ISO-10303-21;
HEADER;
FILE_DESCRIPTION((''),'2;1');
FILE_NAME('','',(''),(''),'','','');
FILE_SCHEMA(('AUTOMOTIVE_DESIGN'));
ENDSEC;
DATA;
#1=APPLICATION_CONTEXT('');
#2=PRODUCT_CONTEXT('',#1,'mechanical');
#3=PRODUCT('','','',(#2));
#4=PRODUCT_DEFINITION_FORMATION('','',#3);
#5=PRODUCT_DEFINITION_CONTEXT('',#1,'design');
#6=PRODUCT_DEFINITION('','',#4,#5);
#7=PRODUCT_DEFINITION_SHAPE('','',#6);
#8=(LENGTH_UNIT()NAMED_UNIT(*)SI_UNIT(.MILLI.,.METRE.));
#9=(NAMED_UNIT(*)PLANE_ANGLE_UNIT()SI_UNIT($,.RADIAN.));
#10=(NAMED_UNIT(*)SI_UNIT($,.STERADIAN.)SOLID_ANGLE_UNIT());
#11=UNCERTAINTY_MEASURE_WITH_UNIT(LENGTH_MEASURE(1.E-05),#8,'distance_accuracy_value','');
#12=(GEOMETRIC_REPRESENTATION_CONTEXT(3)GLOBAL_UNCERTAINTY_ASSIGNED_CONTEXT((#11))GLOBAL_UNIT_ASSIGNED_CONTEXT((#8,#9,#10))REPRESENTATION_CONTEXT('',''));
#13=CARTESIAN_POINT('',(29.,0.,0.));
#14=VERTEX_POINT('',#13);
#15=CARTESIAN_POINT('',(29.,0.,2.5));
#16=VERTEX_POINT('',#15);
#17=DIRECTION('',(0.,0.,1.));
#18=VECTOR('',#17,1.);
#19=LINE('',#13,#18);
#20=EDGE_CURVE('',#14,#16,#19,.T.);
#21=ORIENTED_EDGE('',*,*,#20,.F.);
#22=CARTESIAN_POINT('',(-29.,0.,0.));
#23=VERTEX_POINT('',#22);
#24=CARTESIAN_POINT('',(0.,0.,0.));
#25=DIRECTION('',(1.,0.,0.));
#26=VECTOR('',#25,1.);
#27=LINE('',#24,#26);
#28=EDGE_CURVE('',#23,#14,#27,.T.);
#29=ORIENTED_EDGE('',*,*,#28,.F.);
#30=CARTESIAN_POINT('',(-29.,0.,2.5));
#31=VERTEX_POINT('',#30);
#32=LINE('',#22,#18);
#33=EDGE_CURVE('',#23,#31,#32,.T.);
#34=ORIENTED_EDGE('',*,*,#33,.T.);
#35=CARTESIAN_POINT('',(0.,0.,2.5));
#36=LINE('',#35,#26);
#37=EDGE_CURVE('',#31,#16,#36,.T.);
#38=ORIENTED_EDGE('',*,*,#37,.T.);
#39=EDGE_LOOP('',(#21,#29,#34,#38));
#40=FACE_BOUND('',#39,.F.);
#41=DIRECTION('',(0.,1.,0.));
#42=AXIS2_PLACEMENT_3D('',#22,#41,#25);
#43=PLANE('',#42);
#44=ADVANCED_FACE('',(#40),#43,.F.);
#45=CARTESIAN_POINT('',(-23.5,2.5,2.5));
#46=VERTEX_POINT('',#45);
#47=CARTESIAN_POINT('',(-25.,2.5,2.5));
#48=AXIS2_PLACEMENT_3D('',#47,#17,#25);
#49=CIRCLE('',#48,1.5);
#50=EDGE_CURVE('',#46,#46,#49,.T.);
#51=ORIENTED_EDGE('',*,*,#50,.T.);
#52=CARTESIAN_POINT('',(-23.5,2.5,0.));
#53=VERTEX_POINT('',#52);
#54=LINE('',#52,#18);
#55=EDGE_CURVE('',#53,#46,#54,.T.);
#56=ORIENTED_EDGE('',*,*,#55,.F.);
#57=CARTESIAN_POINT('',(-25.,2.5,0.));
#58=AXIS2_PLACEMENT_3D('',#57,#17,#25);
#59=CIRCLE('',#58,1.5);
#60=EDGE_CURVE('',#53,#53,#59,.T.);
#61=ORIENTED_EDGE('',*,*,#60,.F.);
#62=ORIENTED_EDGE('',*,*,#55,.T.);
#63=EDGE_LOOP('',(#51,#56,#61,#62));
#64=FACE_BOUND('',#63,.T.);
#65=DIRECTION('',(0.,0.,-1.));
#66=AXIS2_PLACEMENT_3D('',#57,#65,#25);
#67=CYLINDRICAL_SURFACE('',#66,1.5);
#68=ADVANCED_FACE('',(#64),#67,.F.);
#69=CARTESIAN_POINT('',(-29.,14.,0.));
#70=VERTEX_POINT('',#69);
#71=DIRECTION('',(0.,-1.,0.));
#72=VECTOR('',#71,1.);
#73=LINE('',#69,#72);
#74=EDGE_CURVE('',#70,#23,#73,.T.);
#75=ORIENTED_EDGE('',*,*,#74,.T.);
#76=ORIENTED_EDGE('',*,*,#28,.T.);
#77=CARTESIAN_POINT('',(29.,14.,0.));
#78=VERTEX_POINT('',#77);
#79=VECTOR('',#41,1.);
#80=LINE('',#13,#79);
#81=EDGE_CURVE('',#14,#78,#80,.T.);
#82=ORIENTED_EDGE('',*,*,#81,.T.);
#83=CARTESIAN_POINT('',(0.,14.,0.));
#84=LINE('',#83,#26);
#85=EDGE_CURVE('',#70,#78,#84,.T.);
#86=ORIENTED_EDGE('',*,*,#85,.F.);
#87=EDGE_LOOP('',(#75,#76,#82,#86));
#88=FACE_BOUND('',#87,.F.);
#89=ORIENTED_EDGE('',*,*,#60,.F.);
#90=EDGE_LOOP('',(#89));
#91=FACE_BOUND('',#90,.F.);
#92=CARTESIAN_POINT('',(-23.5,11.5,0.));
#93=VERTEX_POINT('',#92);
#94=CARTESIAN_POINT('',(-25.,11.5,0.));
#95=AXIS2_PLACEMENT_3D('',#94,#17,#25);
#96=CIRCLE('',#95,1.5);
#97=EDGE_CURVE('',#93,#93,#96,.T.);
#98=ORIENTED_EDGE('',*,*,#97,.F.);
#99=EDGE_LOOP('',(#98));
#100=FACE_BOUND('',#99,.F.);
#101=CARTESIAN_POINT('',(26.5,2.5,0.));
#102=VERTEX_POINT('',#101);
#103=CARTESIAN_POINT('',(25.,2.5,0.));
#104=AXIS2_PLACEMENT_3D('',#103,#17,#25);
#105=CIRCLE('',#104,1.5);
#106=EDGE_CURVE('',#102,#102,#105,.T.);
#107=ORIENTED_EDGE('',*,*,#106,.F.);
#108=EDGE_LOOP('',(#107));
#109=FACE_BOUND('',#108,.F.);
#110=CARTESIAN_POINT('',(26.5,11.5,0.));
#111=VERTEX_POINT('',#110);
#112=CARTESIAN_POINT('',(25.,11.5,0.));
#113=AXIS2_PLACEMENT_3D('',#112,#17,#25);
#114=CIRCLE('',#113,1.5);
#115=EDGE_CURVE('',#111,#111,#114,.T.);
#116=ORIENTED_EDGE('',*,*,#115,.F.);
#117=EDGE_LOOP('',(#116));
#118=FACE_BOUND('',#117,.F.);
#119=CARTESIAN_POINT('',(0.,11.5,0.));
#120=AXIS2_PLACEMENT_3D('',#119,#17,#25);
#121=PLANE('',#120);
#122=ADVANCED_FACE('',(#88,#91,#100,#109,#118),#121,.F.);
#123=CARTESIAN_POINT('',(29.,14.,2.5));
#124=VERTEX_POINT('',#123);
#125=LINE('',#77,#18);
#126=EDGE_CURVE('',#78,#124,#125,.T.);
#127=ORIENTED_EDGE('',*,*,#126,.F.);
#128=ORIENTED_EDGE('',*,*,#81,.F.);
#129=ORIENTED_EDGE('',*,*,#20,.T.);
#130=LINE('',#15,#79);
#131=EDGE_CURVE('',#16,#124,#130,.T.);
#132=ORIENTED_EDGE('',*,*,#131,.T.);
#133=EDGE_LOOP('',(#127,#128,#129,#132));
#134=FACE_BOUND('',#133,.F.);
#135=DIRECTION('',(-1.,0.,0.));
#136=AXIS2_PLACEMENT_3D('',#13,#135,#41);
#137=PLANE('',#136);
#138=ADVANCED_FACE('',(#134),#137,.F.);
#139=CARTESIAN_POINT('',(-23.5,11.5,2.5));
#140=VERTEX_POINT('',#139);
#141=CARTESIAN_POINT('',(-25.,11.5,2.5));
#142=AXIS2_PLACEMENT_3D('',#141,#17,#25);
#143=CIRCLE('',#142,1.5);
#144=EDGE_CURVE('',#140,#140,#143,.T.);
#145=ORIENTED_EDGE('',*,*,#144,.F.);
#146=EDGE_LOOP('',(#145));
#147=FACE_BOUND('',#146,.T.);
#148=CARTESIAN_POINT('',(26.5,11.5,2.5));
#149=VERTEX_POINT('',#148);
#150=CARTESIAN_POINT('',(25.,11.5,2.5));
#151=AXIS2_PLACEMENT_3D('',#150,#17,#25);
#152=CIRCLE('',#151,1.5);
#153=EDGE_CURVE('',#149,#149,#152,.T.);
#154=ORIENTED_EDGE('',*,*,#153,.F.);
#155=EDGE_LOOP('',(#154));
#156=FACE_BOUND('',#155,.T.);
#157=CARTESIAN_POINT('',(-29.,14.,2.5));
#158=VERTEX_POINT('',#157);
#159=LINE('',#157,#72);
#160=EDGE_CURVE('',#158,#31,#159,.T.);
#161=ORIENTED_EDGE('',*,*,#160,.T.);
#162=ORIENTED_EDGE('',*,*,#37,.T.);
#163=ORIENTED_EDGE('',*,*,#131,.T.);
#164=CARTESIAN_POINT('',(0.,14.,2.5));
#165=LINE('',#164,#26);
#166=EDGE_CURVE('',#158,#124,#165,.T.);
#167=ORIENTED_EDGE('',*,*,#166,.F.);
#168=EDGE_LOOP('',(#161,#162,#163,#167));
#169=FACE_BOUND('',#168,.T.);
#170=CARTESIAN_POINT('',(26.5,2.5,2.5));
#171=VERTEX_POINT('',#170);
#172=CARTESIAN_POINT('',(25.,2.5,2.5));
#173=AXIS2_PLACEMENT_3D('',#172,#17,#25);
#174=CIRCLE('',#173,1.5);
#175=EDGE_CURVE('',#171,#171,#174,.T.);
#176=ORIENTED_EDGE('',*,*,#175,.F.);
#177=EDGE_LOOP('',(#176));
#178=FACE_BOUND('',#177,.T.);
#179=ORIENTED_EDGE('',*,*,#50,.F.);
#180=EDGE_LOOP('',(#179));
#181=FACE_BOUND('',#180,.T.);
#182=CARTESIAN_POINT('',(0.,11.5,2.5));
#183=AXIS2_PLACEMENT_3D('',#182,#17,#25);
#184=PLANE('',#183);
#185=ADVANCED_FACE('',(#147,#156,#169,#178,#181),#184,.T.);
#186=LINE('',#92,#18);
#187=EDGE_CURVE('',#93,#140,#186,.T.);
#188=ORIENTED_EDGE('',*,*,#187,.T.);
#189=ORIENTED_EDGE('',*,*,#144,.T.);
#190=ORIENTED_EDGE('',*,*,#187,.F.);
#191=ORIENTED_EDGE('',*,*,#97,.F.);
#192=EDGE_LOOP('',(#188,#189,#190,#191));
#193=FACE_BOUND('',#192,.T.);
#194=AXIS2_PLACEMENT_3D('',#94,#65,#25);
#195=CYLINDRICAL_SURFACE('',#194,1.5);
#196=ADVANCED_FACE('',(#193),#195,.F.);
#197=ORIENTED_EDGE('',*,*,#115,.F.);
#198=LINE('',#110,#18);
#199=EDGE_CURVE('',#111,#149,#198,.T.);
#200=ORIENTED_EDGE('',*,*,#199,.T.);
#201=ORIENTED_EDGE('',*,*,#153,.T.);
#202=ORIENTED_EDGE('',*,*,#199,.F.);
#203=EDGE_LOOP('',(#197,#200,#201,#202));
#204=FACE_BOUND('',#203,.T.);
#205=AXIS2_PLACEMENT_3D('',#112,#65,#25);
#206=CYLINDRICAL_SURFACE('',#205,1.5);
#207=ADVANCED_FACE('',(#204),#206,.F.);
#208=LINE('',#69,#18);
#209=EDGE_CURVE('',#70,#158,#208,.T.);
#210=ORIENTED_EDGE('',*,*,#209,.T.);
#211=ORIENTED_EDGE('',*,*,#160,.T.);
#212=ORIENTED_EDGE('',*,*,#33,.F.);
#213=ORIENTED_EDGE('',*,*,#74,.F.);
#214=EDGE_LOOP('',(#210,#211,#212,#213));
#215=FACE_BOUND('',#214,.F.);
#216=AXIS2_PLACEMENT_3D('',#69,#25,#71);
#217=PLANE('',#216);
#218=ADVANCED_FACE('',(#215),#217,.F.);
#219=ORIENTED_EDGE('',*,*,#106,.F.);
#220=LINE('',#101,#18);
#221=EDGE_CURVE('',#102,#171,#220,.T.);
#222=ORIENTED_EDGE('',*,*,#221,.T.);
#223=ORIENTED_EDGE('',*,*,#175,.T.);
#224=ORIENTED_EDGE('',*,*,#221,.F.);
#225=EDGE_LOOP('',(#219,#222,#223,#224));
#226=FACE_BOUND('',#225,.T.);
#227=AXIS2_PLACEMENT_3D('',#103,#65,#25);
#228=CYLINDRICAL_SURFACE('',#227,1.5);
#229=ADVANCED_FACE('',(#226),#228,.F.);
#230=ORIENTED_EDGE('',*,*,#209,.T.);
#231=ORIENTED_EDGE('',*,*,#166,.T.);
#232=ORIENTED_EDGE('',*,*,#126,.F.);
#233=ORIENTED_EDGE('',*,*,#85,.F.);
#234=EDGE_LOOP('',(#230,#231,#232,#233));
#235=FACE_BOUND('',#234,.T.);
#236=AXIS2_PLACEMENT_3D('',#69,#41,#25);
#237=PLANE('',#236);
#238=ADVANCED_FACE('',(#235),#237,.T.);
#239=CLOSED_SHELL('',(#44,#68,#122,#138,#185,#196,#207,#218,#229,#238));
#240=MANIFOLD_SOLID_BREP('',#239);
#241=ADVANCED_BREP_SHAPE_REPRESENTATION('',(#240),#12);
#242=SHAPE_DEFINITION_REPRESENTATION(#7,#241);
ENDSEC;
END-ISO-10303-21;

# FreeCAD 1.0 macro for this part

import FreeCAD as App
import Part
import Sketcher
Q = App.Units.Quantity


def add_polygon(sketch, points):
    """Adds a closed chain of lines whose ends are joined by coincident constraints."""
    first, n = sketch.GeometryCount, len(points)
    for a, b in zip(points, points[1:] + points[:1]):
        sketch.addGeometry(Part.LineSegment(App.Vector(*a, 0), App.Vector(*b, 0)), False)
    for i in range(n):
        sketch.addConstraint(Sketcher.Constraint("Coincident", first + i, 2, first + (i + 1) % n, 1))

doc = App.newDocument("Part")
body = doc.addObject("PartDesign::Body", "Body")

sketch1 = body.newObject("Sketcher::SketchObject", "Sketch")
sketch1.AttachmentSupport = (doc.getObject("XY_Plane"), [""])
sketch1.MapMode = "FlatFace"
add_polygon(sketch1, [(-29, 14), (-29, 0), (29, 0), (29, 14)])
sketch1.addGeometry(Part.Circle(App.Vector(-25, 2.5, 0), App.Vector(0, 0, 1), 1.5), False)
sketch1.addGeometry(Part.Circle(App.Vector(25, 2.5, 0), App.Vector(0, 0, 1), 1.5), False)
sketch1.addGeometry(Part.Circle(App.Vector(-25, 11.5, 0), App.Vector(0, 0, 1), 1.5), False)
sketch1.addGeometry(Part.Circle(App.Vector(25, 11.5, 0), App.Vector(0, 0, 1), 1.5), False)
sketch1.addConstraint(Sketcher.Constraint("Vertical", 0))
sketch1.addConstraint(Sketcher.Constraint("Horizontal", 1))
sketch1.addConstraint(Sketcher.Constraint("Vertical", 2))
sketch1.addConstraint(Sketcher.Constraint("Horizontal", 3))
sketch1.addConstraint(Sketcher.Constraint("Equal", 4, 5))
sketch1.addConstraint(Sketcher.Constraint("Equal", 5, 6))
sketch1.addConstraint(Sketcher.Constraint("Equal", 6, 7))
sketch1.addConstraint(Sketcher.Constraint("Symmetric", 0, 2, 1, 2, -1, 1))
sketch1.addConstraint(Sketcher.Constraint("Symmetric", 4, 3, 5, 3, -2))
sketch1.addConstraint(Sketcher.Constraint("Symmetric", 6, 3, 7, 3, -2))
sketch1.addConstraint(Sketcher.Constraint("Vertical", 4, 3, 6, 3))
sketch1.addConstraint(Sketcher.Constraint("Diameter", 4, Q("3 mm")))
sketch1.addConstraint(Sketcher.Constraint("DistanceX", 1, 1, 1, 2, Q("58 mm")))
sketch1.addConstraint(Sketcher.Constraint("DistanceY", 0, 2, 0, 1, Q("14 mm")))
sketch1.addConstraint(Sketcher.Constraint("DistanceX", 4, 3, -1, 1, Q("25 mm")))
sketch1.addConstraint(Sketcher.Constraint("DistanceY", 4, 3, 6, 3, Q("9 mm")))
sketch1.addConstraint(Sketcher.Constraint("DistanceY", -1, 1, 4, 3, Q("2.5 mm")))
pad1 = body.newObject("PartDesign::Pad", "Pad")
pad1.Profile = sketch1
pad1.Length = 2.5

doc.recompute()
